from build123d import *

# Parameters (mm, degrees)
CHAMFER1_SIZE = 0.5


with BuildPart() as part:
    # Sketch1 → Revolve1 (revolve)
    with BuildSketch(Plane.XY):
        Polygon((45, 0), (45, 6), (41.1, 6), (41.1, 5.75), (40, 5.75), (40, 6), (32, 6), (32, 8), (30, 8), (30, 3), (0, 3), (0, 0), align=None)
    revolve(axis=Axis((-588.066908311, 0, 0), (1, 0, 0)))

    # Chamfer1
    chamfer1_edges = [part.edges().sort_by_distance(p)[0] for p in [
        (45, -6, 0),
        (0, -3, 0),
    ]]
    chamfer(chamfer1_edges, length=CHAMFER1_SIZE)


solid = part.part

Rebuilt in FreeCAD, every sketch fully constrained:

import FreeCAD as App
import Part
import Sketcher

V = App.Vector
Q = App.Units.Quantity


def edges_at(feature, points):
    """Names of the edges that pass closest to the given points."""
    edges = feature.Shape.Edges
    near = lambda p: min(range(len(edges)), key=lambda i: edges[i].distToShape(Part.Vertex(*p))[0])
    return sorted({f"Edge{near(p) + 1}" for p in points})


def add_polygon(sketch, points):
    """Adds a closed chain of lines whose ends are joined by coincident constraints."""
    first, n = sketch.GeometryCount, len(points)
    for a, b in zip(points, points[1:] + points[:1]):
        sketch.addGeometry(Part.LineSegment(App.Vector(*a, 0), App.Vector(*b, 0)), False)
    for i in range(n):
        sketch.addConstraint(Sketcher.Constraint("Coincident", first + i, 2, first + (i + 1) % n, 1))

doc = App.newDocument("Part")
body = doc.addObject("PartDesign::Body", "Body")

sketch1 = body.newObject("Sketcher::SketchObject", "Sketch")
sketch1.AttachmentSupport = (doc.getObject("XY_Plane"), [""])
sketch1.MapMode = "FlatFace"
add_polygon(sketch1, [(45, 0), (45, 6), (41.1, 6), (41.1, 5.75), (40, 5.75), (40, 6), (32, 6), (32, 8), (30, 8), (30, 3), (0, 3), (0, 0)])
sketch1.addConstraint([
    Sketcher.Constraint("Vertical", 0),
    Sketcher.Constraint("Horizontal", 1),
    Sketcher.Constraint("Vertical", 2),
    Sketcher.Constraint("Horizontal", 3),
    Sketcher.Constraint("Vertical", 4),
    Sketcher.Constraint("Horizontal", 5),
    Sketcher.Constraint("Vertical", 6),
    Sketcher.Constraint("Horizontal", 7),
    Sketcher.Constraint("Vertical", 8),
    Sketcher.Constraint("Horizontal", 9),
    Sketcher.Constraint("Vertical", 10),
    Sketcher.Constraint("Horizontal", 11),
    Sketcher.Constraint("Coincident", 10, 2, -1, 1),
    Sketcher.Constraint("Horizontal", 1, 2, 4, 2),
    Sketcher.Constraint("Equal", 7, 6),
    Sketcher.Constraint("DistanceX", 5, 2, 5, 1, Q("8 mm")),
    Sketcher.Constraint("DistanceX", 7, 2, 7, 1, Q("2 mm")),
    Sketcher.Constraint("DistanceX", 9, 2, 9, 1, Q("30 mm")),
    Sketcher.Constraint("DistanceX", 11, 1, 11, 2, Q("45 mm")),
    Sketcher.Constraint("DistanceY", 0, 1, 0, 2, Q("6 mm")),
    Sketcher.Constraint("DistanceY", 8, 2, 8, 1, Q("5 mm")),
    Sketcher.Constraint("DistanceX", 1, 2, 1, 1, Q("3.9 mm")),
    Sketcher.Constraint("DistanceY", 2, 2, 2, 1, Q("0.25 mm")),
])
revolution = body.newObject("PartDesign::Revolution", "Revolution")
revolution.Profile = sketch1
revolution.ReferenceAxis = (sketch1, ["H_Axis"])
revolution.Angle = 360
doc.recompute()

chamfer = body.newObject("PartDesign::Chamfer", "Chamfer")
chamfer.Base = (revolution, edges_at(revolution, [(45, -6, 0), (0, -3, 0)]))
chamfer.Size = 0.5

doc.recompute()
